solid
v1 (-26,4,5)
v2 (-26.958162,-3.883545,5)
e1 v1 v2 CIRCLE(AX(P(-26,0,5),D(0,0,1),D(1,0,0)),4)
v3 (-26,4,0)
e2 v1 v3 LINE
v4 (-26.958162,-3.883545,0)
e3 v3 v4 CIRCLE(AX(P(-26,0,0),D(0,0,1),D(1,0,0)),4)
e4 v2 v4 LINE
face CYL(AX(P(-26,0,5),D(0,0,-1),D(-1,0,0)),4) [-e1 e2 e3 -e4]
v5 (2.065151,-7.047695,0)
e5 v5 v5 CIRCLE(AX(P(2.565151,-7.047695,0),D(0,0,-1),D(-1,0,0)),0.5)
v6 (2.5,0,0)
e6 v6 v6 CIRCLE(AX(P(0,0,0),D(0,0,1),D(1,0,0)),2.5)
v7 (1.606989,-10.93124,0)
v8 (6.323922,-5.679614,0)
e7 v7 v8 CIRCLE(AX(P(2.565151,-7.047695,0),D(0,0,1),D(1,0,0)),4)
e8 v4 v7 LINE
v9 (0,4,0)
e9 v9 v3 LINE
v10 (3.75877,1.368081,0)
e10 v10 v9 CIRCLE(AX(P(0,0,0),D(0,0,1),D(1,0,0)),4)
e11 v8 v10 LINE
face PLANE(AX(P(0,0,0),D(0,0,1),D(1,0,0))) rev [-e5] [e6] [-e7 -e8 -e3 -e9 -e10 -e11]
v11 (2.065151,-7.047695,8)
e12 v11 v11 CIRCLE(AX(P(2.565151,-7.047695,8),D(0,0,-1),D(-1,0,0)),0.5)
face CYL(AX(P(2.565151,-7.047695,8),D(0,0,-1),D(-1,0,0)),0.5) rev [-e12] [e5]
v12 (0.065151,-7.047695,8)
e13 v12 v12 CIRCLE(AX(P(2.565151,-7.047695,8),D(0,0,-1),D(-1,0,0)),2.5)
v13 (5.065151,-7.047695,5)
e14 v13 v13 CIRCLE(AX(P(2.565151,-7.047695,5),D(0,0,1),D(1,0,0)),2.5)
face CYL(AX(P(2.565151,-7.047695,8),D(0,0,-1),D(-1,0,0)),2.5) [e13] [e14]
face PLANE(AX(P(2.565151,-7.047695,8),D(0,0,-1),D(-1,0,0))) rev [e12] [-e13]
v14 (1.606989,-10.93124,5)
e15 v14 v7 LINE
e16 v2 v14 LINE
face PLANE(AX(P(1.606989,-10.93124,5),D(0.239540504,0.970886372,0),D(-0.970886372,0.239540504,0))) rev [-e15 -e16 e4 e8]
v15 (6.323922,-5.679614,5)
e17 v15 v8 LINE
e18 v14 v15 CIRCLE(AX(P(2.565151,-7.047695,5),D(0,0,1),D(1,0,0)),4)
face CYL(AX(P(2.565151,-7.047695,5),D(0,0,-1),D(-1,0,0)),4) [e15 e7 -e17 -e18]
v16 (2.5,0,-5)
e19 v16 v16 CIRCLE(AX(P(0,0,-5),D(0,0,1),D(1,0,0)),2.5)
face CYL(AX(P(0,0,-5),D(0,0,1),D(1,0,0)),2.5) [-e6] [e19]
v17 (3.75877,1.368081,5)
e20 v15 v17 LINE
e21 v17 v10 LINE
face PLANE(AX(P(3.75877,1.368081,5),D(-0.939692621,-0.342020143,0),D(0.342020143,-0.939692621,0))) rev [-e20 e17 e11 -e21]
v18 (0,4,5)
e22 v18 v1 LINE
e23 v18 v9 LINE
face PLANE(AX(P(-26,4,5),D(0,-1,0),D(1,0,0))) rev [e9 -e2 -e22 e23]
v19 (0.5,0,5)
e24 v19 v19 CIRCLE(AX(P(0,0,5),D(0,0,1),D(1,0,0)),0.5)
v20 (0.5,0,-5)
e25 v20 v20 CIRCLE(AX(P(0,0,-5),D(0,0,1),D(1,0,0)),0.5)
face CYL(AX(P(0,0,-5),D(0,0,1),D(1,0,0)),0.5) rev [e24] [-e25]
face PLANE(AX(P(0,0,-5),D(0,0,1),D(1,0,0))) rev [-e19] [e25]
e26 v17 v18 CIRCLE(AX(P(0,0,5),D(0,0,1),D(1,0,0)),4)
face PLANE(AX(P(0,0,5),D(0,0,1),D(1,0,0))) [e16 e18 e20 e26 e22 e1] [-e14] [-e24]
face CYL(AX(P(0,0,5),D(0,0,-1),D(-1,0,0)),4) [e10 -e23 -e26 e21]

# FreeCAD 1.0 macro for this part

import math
import FreeCAD as App
import Part
import Sketcher

V = App.Vector
Q = App.Units.Quantity

doc = App.newDocument("Part")
body = doc.addObject("PartDesign::Body", "Body")

sketch1 = body.newObject("Sketcher::SketchObject", "Sketch")
sketch1.AttachmentSupport = (doc.getObject("XY_Plane"), [""])
sketch1.MapMode = "FlatFace"
sketch1.addGeometry(Part.LineSegment(V(0, 4, 0), V(-26, 4, 0)), False)
sketch1.addGeometry(Part.ArcOfCircle(Part.Circle(V(-26, 0, 0), V(0, 0, 1), 4), math.radians(90), math.radians(256.140578)), False)
sketch1.addGeometry(Part.LineSegment(V(-26.958162, -3.883545, 0), V(1.606989, -10.93124, 0)), False)
sketch1.addGeometry(Part.ArcOfCircle(Part.Circle(V(2.565151, -7.047695, 0), V(0, 0, 1), 4), math.radians(-103.859422), math.radians(20)), False)
sketch1.addGeometry(Part.LineSegment(V(6.323922, -5.679614, 0), V(3.75877, 1.368081, 0)), False)
sketch1.addGeometry(Part.ArcOfCircle(Part.Circle(V(0, 0, 0), V(0, 0, 1), 4), math.radians(20), math.radians(90)), False)
sketch1.addGeometry(Part.Circle(V(2.565151, -7.047695, 0), V(0, 0, 1), 2.5), False)
sketch1.addGeometry(Part.Circle(V(0, 0, 0), V(0, 0, 1), 2.5), False)
sketch1.addGeometry(Part.Circle(V(-26, 0, 0), V(0, 0, 1), 2.5), False)
sketch1.addConstraint(Sketcher.Constraint("Tangent", 0, 2, 1, 1))
sketch1.addConstraint(Sketcher.Constraint("Tangent", 1, 2, 2, 1))
sketch1.addConstraint(Sketcher.Constraint("Tangent", 2, 2, 3, 1))
sketch1.addConstraint(Sketcher.Constraint("Tangent", 3, 2, 4, 1))
sketch1.addConstraint(Sketcher.Constraint("Tangent", 4, 2, 5, 1))
sketch1.addConstraint(Sketcher.Constraint("Tangent", 5, 2, 0, 1))
sketch1.addConstraint(Sketcher.Constraint("Horizontal", 0))
sketch1.addConstraint(Sketcher.Constraint("Coincident", 5, 3, -1, 1))
sketch1.addConstraint(Sketcher.Constraint("Coincident", 7, 3, -1, 1))
sketch1.addConstraint(Sketcher.Constraint("Coincident", 6, 3, 3, 3))
sketch1.addConstraint(Sketcher.Constraint("Coincident", 8, 3, 1, 3))
sketch1.addConstraint(Sketcher.Constraint("Equal", 1, 3))
sketch1.addConstraint(Sketcher.Constraint("Equal", 3, 5))
sketch1.addConstraint(Sketcher.Constraint("Equal", 6, 7))
sketch1.addConstraint(Sketcher.Constraint("Equal", 7, 8))
sketch1.addConstraint(Sketcher.Constraint("Diameter", 6, 5.0))
sketch1.addConstraint(Sketcher.Constraint("Radius", 1, 4.0))
sketch1.addConstraint(Sketcher.Constraint("DistanceX", 0, 2, 0, 1, 26.0))
sketch1.addConstraint(Sketcher.Constraint("Angle", 4, Q("110 deg")))
sketch1.addConstraint(Sketcher.Constraint("Distance", 4, 7.5))
pad1 = body.newObject("PartDesign::Pad", "Pad")
pad1.Profile = sketch1
pad1.Length = 5

sketch2 = body.newObject("Sketcher::SketchObject", "Sketch001")
sketch2.AttachmentSupport = (doc.getObject("XY_Plane"), [""])
sketch2.MapMode = "FlatFace"
sketch2.AttachmentOffset = App.Placement(V(0, 0, -5), App.Rotation())
sketch2.addGeometry(Part.Circle(V(0, 0, 0), V(0, 0, 1), 2.5), False)
sketch2.addGeometry(Part.Circle(V(0, 0, 0), V(0, 0, 1), 0.5), False)
sketch2.addConstraint(Sketcher.Constraint("Coincident", 0, 3, -1, 1))
sketch2.addConstraint(Sketcher.Constraint("Coincident", 1, 3, -1, 1))
sketch2.addConstraint(Sketcher.Constraint("Diameter", 0, 5.0))
sketch2.addConstraint(Sketcher.Constraint("Diameter", 1, 1.0))
pad2 = body.newObject("PartDesign::Pad", "Pad001")
pad2.Profile = sketch2
pad2.Length = 10

sketch3 = body.newObject("Sketcher::SketchObject", "Sketch002")
sketch3.AttachmentSupport = (doc.getObject("XY_Plane"), [""])
sketch3.MapMode = "FlatFace"
sketch3.addGeometry(Part.Circle(V(2.565151, -7.047695, 0), V(0, 0, 1), 2.5), False)
sketch3.addGeometry(Part.Circle(V(2.565151, -7.047695, 0), V(0, 0, 1), 0.5), False)
sketch3.addConstraint(Sketcher.Constraint("Coincident", 1, 3, 0, 3))
sketch3.addConstraint(Sketcher.Constraint("Diameter", 0, 5.0))
sketch3.addConstraint(Sketcher.Constraint("Diameter", 1, 1.0))
sketch3.addConstraint(Sketcher.Constraint("DistanceX", -1, 1, 0, 3, 2.565151))
sketch3.addConstraint(Sketcher.Constraint("DistanceY", 0, 3, -1, 1, 7.047695))
pad3 = body.newObject("PartDesign::Pad", "Pad002")
pad3.Profile = sketch3
pad3.Length = 8

sketch4 = body.newObject("Sketcher::SketchObject", "Sketch003")
sketch4.AttachmentSupport = (doc.getObject("XY_Plane"), [""])
sketch4.MapMode = "FlatFace"
sketch4.addGeometry(Part.Circle(V(-26, 0, 0), V(0, 0, 1), 2.5), False)
sketch4.addConstraint(Sketcher.Constraint("PointOnObject", 0, 3, -1))
sketch4.addConstraint(Sketcher.Constraint("Diameter", 0, 5.0))
sketch4.addConstraint(Sketcher.Constraint("DistanceX", 0, 3, -1, 1, 26.0))
pad4 = body.newObject("PartDesign::Pad", "Pad003")
pad4.Profile = sketch4
pad4.Length = 5

doc.recompute()
